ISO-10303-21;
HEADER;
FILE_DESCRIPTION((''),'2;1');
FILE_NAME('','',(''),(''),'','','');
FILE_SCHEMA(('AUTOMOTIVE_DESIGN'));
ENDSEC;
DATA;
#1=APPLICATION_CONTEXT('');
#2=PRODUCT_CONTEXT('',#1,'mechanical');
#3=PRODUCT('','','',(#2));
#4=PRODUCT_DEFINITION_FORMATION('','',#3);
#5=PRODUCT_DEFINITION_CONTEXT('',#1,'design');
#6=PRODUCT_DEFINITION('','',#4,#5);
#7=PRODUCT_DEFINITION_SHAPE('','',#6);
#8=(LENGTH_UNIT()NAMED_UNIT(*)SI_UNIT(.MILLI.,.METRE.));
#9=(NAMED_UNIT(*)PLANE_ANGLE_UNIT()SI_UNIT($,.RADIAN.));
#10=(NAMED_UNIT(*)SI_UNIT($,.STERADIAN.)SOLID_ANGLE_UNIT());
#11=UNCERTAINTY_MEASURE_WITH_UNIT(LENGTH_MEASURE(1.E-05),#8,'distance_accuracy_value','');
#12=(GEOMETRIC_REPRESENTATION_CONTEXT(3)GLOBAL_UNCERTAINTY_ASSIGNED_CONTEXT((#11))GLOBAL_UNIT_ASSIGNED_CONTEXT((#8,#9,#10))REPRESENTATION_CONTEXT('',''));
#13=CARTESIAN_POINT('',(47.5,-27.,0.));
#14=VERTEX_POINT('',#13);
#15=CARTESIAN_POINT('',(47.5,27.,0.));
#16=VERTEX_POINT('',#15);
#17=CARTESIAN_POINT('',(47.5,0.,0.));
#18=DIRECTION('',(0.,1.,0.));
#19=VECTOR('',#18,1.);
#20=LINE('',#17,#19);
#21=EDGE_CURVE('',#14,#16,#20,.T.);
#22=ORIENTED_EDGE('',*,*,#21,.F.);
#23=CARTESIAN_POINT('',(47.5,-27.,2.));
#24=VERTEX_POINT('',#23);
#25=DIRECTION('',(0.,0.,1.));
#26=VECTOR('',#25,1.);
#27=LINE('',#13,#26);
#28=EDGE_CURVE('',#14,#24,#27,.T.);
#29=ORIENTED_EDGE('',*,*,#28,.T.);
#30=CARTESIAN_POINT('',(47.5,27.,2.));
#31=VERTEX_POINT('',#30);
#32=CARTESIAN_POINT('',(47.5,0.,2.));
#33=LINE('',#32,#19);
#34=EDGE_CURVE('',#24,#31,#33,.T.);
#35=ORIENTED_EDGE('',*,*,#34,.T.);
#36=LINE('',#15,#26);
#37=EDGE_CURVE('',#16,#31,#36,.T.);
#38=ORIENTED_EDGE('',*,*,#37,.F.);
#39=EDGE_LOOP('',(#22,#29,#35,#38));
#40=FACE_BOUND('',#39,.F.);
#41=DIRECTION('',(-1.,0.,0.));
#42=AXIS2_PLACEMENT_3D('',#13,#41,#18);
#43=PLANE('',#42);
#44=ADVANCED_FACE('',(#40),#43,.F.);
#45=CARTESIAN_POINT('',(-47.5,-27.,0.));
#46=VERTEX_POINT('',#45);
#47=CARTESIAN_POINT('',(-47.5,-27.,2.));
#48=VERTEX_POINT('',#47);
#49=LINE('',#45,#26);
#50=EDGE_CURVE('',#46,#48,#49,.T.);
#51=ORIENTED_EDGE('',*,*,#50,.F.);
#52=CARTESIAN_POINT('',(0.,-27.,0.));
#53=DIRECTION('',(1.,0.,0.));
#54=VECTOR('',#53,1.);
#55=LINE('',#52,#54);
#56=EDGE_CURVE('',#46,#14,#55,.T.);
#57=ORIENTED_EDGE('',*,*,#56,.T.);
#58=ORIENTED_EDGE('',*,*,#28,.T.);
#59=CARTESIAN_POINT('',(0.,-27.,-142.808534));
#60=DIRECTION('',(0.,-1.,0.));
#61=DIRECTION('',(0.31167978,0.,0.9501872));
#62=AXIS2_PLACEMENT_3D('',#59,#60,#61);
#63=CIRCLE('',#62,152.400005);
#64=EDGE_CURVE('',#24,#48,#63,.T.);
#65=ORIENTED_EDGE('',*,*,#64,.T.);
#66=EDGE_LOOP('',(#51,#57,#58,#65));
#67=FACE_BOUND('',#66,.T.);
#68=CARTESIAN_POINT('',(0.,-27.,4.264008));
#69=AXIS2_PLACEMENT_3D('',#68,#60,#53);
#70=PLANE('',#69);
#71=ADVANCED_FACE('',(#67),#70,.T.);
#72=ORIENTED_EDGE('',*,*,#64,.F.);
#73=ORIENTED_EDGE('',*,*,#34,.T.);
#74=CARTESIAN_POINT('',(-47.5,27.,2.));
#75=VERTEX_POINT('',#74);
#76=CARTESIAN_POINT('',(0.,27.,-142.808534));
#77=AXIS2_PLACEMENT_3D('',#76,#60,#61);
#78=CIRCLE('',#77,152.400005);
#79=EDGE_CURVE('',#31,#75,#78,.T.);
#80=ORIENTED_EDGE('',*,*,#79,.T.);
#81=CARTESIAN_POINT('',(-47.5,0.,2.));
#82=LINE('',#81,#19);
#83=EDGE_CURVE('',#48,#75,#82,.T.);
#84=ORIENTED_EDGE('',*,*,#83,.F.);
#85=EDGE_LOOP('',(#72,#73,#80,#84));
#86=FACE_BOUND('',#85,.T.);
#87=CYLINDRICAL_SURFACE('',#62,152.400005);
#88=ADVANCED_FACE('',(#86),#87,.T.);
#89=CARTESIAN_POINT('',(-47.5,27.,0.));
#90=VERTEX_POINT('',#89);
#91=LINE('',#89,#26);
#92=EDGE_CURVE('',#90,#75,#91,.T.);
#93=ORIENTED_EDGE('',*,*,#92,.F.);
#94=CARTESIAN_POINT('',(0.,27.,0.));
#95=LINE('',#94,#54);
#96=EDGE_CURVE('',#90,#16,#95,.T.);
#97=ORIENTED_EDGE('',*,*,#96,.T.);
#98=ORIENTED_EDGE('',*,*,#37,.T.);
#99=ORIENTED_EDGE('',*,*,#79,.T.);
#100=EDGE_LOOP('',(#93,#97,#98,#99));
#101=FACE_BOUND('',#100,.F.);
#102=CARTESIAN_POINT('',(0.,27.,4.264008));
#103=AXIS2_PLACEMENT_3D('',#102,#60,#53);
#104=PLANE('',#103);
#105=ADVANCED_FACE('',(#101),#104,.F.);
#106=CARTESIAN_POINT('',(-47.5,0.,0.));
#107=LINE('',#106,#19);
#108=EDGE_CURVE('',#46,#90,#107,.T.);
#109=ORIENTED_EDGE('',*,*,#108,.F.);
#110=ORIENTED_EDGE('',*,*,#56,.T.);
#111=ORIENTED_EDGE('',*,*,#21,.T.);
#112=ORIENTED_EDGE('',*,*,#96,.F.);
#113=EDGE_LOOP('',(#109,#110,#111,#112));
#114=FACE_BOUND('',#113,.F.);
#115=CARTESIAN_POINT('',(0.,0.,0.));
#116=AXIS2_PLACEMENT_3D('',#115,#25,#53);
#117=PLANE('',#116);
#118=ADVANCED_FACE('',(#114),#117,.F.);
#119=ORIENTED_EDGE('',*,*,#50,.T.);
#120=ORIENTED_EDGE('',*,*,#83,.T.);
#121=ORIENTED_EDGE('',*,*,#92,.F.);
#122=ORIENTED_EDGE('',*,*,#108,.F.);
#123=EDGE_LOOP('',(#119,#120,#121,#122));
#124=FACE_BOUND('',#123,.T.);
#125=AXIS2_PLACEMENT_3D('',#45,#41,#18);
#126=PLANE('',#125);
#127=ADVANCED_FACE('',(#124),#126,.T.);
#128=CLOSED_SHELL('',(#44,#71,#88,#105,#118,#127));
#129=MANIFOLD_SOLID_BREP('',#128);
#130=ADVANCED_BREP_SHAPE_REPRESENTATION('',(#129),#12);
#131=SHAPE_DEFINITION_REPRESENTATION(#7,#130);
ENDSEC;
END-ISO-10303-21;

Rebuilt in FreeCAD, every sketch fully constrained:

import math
import FreeCAD as App
import Part
import Sketcher
from FreeCAD import Vector


def add_polygon(sketch, points):
    """Adds a closed chain of lines whose ends are joined by coincident constraints."""
    first, n = sketch.GeometryCount, len(points)
    for a, b in zip(points, points[1:] + points[:1]):
        sketch.addGeometry(Part.LineSegment(App.Vector(*a, 0), App.Vector(*b, 0)), False)
    for i in range(n):
        sketch.addConstraint(Sketcher.Constraint("Coincident", first + i, 2, first + (i + 1) % n, 1))

doc = App.newDocument("Part")
body = doc.addObject("PartDesign::Body", "Body")

# Sketch on XY plane
sketch1 = doc.addObject("Sketcher::SketchObject", "Sketch")
body.addObject(sketch1)
sketch1.AttachmentSupport = (doc.XY_Plane, [""])
sketch1.MapMode = "FlatFace"
add_polygon(sketch1, [(-48, 27), (-48, -27), (48, -27), (48, 27)])  # lines 0-3
sketch1.addConstraint([
    Sketcher.Constraint("Vertical", 0),
    Sketcher.Constraint("Horizontal", 1),
    Sketcher.Constraint("Vertical", 2),
    Sketcher.Constraint("Horizontal", 3),
    Sketcher.Constraint("Symmetric", 0, 2, 2, 2, -1, 1),
    Sketcher.Constraint("DistanceX", 1, 1, 1, 2, 95.0),
    Sketcher.Constraint("DistanceY", 0, 2, 0, 1, 54.0),
])
pad1 = doc.addObject("PartDesign::Pad", "Pad")
body.addObject(pad1)
pad1.Profile = sketch1
pad1.Length = 2

# Sketch on XZ plane
sketch2 = doc.addObject("Sketcher::SketchObject", "Sketch001")
body.addObject(sketch2)
sketch2.AttachmentSupport = (doc.XZ_Plane, [""])
sketch2.MapMode = "FlatFace"
sketch2.AttachmentOffset = App.Placement(Vector(0, 0, 27), App.Rotation())
sketch2.addGeometry([
    Part.LineSegment(Vector(-48, 2, 0), Vector(48, 2, 0)),
    Part.ArcOfCircle(Part.Circle(Vector(0, -143, 0), Vector(0, 0, 1), 152), math.radians(72), math.radians(108)),
], False)
sketch2.addConstraint([
    Sketcher.Constraint("Coincident", 0, 1, 1, 2),
    Sketcher.Constraint("Coincident", 1, 1, 0, 2),
    Sketcher.Constraint("Horizontal", 0),
    Sketcher.Constraint("PointOnObject", 1, 3, -2),
    Sketcher.Constraint("DistanceX", 0, 1, 0, 2, 95.0),
    Sketcher.Constraint("DistanceY", -1, 1, 0, 1, 2.0),
    Sketcher.Constraint("Radius", 1, 152.400005),
])
pad2 = doc.addObject("PartDesign::Pad", "Pad001")
body.addObject(pad2)
pad2.Profile = sketch2
pad2.Length = 54
pad2.Reversed = True

doc.recompute()
